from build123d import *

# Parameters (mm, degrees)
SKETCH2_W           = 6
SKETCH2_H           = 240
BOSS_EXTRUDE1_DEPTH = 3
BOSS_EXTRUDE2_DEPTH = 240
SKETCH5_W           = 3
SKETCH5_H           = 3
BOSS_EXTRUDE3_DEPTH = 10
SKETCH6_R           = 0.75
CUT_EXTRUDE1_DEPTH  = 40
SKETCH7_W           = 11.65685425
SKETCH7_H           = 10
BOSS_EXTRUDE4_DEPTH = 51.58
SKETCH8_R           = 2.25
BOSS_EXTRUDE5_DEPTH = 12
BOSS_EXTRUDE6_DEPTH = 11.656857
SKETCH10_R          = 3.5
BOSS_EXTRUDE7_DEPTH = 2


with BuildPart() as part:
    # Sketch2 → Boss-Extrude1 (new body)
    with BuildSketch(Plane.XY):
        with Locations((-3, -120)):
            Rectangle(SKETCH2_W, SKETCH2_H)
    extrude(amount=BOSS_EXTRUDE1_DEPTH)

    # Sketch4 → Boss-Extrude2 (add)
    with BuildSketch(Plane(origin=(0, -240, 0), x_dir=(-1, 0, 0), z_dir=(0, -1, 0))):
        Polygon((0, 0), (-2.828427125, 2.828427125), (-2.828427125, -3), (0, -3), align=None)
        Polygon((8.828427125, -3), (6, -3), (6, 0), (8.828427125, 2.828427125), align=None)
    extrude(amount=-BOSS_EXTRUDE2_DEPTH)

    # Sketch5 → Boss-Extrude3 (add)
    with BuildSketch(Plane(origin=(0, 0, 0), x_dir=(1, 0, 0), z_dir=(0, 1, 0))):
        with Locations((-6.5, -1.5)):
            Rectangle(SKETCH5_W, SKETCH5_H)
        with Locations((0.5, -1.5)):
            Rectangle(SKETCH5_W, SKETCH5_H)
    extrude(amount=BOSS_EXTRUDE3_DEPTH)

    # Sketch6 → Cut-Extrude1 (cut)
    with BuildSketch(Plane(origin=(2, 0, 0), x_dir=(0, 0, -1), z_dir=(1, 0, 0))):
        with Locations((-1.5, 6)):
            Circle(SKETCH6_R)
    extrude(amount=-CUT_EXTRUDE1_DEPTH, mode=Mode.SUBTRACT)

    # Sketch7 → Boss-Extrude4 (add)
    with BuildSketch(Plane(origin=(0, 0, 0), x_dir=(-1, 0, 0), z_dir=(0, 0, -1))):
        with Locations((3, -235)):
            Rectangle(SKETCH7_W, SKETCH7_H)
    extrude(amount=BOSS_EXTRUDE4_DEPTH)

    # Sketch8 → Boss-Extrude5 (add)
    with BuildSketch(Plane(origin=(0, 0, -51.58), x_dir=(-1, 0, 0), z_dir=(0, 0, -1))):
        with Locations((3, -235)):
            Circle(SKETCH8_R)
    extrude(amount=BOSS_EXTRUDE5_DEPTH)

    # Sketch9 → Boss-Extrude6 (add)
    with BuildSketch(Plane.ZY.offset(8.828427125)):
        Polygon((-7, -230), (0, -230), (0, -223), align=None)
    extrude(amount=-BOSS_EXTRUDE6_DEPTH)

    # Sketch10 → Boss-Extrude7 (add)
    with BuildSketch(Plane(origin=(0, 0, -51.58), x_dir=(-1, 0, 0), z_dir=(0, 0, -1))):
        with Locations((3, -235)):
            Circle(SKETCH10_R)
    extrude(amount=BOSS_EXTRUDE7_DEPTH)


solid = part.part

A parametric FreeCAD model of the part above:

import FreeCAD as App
import Part
import Sketcher
Q = App.Units.Quantity

doc = App.newDocument("Part")
body = doc.addObject("PartDesign::Body", "Body")

# Sketch on XY plane
sketch1 = body.newObject("Sketcher::SketchObject", "Sketch")
sketch1.AttachmentSupport = (doc.getObject("XY_Plane"), [""])
sketch1.MapMode = "FlatFace"
sketch1.addGeometry(Part.LineSegment(App.Vector(-6, 0, 0), App.Vector(-6, -240, 0)), False)
sketch1.addGeometry(Part.LineSegment(App.Vector(-6, -240, 0), App.Vector(0, -240, 0)), False)
sketch1.addGeometry(Part.LineSegment(App.Vector(0, -240, 0), App.Vector(0, 0, 0)), False)
sketch1.addGeometry(Part.LineSegment(App.Vector(0, 0, 0), App.Vector(-6, 0, 0)), False)
sketch1.addConstraint(Sketcher.Constraint("Coincident", 0, 2, 1, 1))
sketch1.addConstraint(Sketcher.Constraint("Coincident", 1, 2, 2, 1))
sketch1.addConstraint(Sketcher.Constraint("Coincident", 2, 2, 3, 1))
sketch1.addConstraint(Sketcher.Constraint("Coincident", 3, 2, 0, 1))
sketch1.addConstraint(Sketcher.Constraint("Vertical", 0))
sketch1.addConstraint(Sketcher.Constraint("Horizontal", 1))
sketch1.addConstraint(Sketcher.Constraint("Vertical", 2))
sketch1.addConstraint(Sketcher.Constraint("Horizontal", 3))
sketch1.addConstraint(Sketcher.Constraint("Coincident", 2, 2, -1, 1))
sketch1.addConstraint(Sketcher.Constraint("DistanceX", 1, 1, 1, 2, Q("6 mm")))
sketch1.addConstraint(Sketcher.Constraint("DistanceY", 0, 2, 0, 1, Q("240 mm")))
pad1 = body.newObject("PartDesign::Pad", "Pad")
pad1.Profile = sketch1
pad1.Length = 3

# Sketch on XZ plane
sketch2 = body.newObject("Sketcher::SketchObject", "Sketch001")
sketch2.AttachmentSupport = (doc.getObject("XZ_Plane"), [""])
sketch2.MapMode = "FlatFace"
sketch2.AttachmentOffset = App.Placement(App.Vector(0, 0, 240), App.Rotation())
sketch2.addGeometry(Part.LineSegment(App.Vector(0, 0, 0), App.Vector(2.8, -2.8, 0)), False)
sketch2.addGeometry(Part.LineSegment(App.Vector(2.8, -2.8, 0), App.Vector(2.8, 3, 0)), False)
sketch2.addGeometry(Part.LineSegment(App.Vector(2.8, 3, 0), App.Vector(0, 3, 0)), False)
sketch2.addGeometry(Part.LineSegment(App.Vector(0, 3, 0), App.Vector(0, 0, 0)), False)
sketch2.addGeometry(Part.LineSegment(App.Vector(-6, 3, 0), App.Vector(-8.8, 3, 0)), False)
sketch2.addGeometry(Part.LineSegment(App.Vector(-8.8, 3, 0), App.Vector(-8.8, -2.8, 0)), False)
sketch2.addGeometry(Part.LineSegment(App.Vector(-8.8, -2.8, 0), App.Vector(-6, 0, 0)), False)
sketch2.addGeometry(Part.LineSegment(App.Vector(-6, 0, 0), App.Vector(-6, 3, 0)), False)
sketch2.addConstraint(Sketcher.Constraint("Coincident", 0, 2, 1, 1))
sketch2.addConstraint(Sketcher.Constraint("Coincident", 1, 2, 2, 1))
sketch2.addConstraint(Sketcher.Constraint("Coincident", 2, 2, 3, 1))
sketch2.addConstraint(Sketcher.Constraint("Coincident", 3, 2, 0, 1))
sketch2.addConstraint(Sketcher.Constraint("Coincident", 4, 2, 5, 1))
sketch2.addConstraint(Sketcher.Constraint("Coincident", 5, 2, 6, 1))
sketch2.addConstraint(Sketcher.Constraint("Coincident", 6, 2, 7, 1))
sketch2.addConstraint(Sketcher.Constraint("Coincident", 7, 2, 4, 1))
sketch2.addConstraint(Sketcher.Constraint("Vertical", 1))
sketch2.addConstraint(Sketcher.Constraint("Horizontal", 2))
sketch2.addConstraint(Sketcher.Constraint("Vertical", 3))
sketch2.addConstraint(Sketcher.Constraint("Horizontal", 4))
sketch2.addConstraint(Sketcher.Constraint("Vertical", 5))
sketch2.addConstraint(Sketcher.Constraint("Vertical", 7))
sketch2.addConstraint(Sketcher.Constraint("Coincident", 3, 2, -1, 1))
sketch2.addConstraint(Sketcher.Constraint("PointOnObject", 6, 2, -1))
sketch2.addConstraint(Sketcher.Constraint("Perpendicular", 0, 6))
sketch2.addConstraint(Sketcher.Constraint("Horizontal", 2, 2, 4, 2))
sketch2.addConstraint(Sketcher.Constraint("Horizontal", 0, 2, 5, 2))
sketch2.addConstraint(Sketcher.Constraint("Equal", 2, 4))
sketch2.addConstraint(Sketcher.Constraint("DistanceY", 3, 2, 3, 1, Q("3 mm")))
sketch2.addConstraint(Sketcher.Constraint("Distance", 0, Q("4 mm")))
sketch2.addConstraint(Sketcher.Constraint("DistanceX", 6, 2, -1, 1, Q("6 mm")))
pad2 = body.newObject("PartDesign::Pad", "Pad001")
pad2.Profile = sketch2
pad2.Length = 240
pad2.Reversed = True

# Sketch on XZ plane
sketch3 = body.newObject("Sketcher::SketchObject", "Sketch002")
sketch3.AttachmentSupport = (doc.getObject("XZ_Plane"), [""])
sketch3.MapMode = "FlatFace"
sketch3.addGeometry(Part.LineSegment(App.Vector(-8, 0, 0), App.Vector(-8, 3, 0)), False)
sketch3.addGeometry(Part.LineSegment(App.Vector(-8, 3, 0), App.Vector(-5, 3, 0)), False)
sketch3.addGeometry(Part.LineSegment(App.Vector(-5, 3, 0), App.Vector(-5, 0, 0)), False)
sketch3.addGeometry(Part.LineSegment(App.Vector(-5, 0, 0), App.Vector(-8, 0, 0)), False)
sketch3.addGeometry(Part.LineSegment(App.Vector(-1, 0, 0), App.Vector(-1, 3, 0)), False)
sketch3.addGeometry(Part.LineSegment(App.Vector(-1, 3, 0), App.Vector(2, 3, 0)), False)
sketch3.addGeometry(Part.LineSegment(App.Vector(2, 3, 0), App.Vector(2, 0, 0)), False)
sketch3.addGeometry(Part.LineSegment(App.Vector(2, 0, 0), App.Vector(-1, 0, 0)), False)
sketch3.addConstraint(Sketcher.Constraint("Coincident", 0, 2, 1, 1))
sketch3.addConstraint(Sketcher.Constraint("Coincident", 1, 2, 2, 1))
sketch3.addConstraint(Sketcher.Constraint("Coincident", 2, 2, 3, 1))
sketch3.addConstraint(Sketcher.Constraint("Coincident", 3, 2, 0, 1))
sketch3.addConstraint(Sketcher.Constraint("Coincident", 4, 2, 5, 1))
sketch3.addConstraint(Sketcher.Constraint("Coincident", 5, 2, 6, 1))
sketch3.addConstraint(Sketcher.Constraint("Coincident", 6, 2, 7, 1))
sketch3.addConstraint(Sketcher.Constraint("Coincident", 7, 2, 4, 1))
sketch3.addConstraint(Sketcher.Constraint("Vertical", 0))
sketch3.addConstraint(Sketcher.Constraint("Horizontal", 1))
sketch3.addConstraint(Sketcher.Constraint("Vertical", 2))
sketch3.addConstraint(Sketcher.Constraint("Horizontal", 3))
sketch3.addConstraint(Sketcher.Constraint("Vertical", 4))
sketch3.addConstraint(Sketcher.Constraint("Horizontal", 5))
sketch3.addConstraint(Sketcher.Constraint("Vertical", 6))
sketch3.addConstraint(Sketcher.Constraint("Horizontal", 7))
sketch3.addConstraint(Sketcher.Constraint("PointOnObject", 2, 2, -1))
sketch3.addConstraint(Sketcher.Constraint("PointOnObject", 6, 2, -1))
sketch3.addConstraint(Sketcher.Constraint("Horizontal", 1, 2, 4, 2))
sketch3.addConstraint(Sketcher.Constraint("Equal", 3, 5))
sketch3.addConstraint(Sketcher.Constraint("Equal", 7, 0))
sketch3.addConstraint(Sketcher.Constraint("DistanceX", 1, 1, 1, 2, Q("3 mm")))
sketch3.addConstraint(Sketcher.Constraint("DistanceX", 0, 2, -1, 1, Q("8 mm")))
sketch3.addConstraint(Sketcher.Constraint("DistanceX", 4, 2, -1, 1, Q("1 mm")))
pad3 = body.newObject("PartDesign::Pad", "Pad002")
pad3.Profile = sketch3
pad3.Length = 10
pad3.Reversed = True

# Sketch on YZ plane
sketch4 = body.newObject("Sketcher::SketchObject", "Sketch003")
sketch4.AttachmentSupport = (doc.getObject("YZ_Plane"), [""])
sketch4.MapMode = "FlatFace"
sketch4.AttachmentOffset = App.Placement(App.Vector(0, 0, 2), App.Rotation())
sketch4.addGeometry(Part.Circle(App.Vector(6, 1.5, 0), App.Vector(0, 0, 1), 0.8), False)
sketch4.addConstraint(Sketcher.Constraint("Diameter", 0, Q("1.5 mm")))
sketch4.addConstraint(Sketcher.Constraint("DistanceX", -1, 1, 0, 3, Q("6 mm")))
sketch4.addConstraint(Sketcher.Constraint("DistanceY", -1, 1, 0, 3, Q("1.5 mm")))
pocket1 = body.newObject("PartDesign::Pocket", "Pocket")
pocket1.Profile = sketch4
pocket1.Length = 40

# Sketch on XY plane
sketch5 = body.newObject("Sketcher::SketchObject", "Sketch004")
sketch5.AttachmentSupport = (doc.getObject("XY_Plane"), [""])
sketch5.MapMode = "FlatFace"
sketch5.addGeometry(Part.LineSegment(App.Vector(3, -230, 0), App.Vector(3, -240, 0)), False)
sketch5.addGeometry(Part.LineSegment(App.Vector(3, -240, 0), App.Vector(-9, -240, 0)), False)
sketch5.addGeometry(Part.LineSegment(App.Vector(-9, -240, 0), App.Vector(-9, -230, 0)), False)
sketch5.addGeometry(Part.LineSegment(App.Vector(-9, -230, 0), App.Vector(3, -230, 0)), False)
sketch5.addConstraint(Sketcher.Constraint("Coincident", 0, 2, 1, 1))
sketch5.addConstraint(Sketcher.Constraint("Coincident", 1, 2, 2, 1))
sketch5.addConstraint(Sketcher.Constraint("Coincident", 2, 2, 3, 1))
sketch5.addConstraint(Sketcher.Constraint("Coincident", 3, 2, 0, 1))
sketch5.addConstraint(Sketcher.Constraint("Vertical", 0))
sketch5.addConstraint(Sketcher.Constraint("Horizontal", 1))
sketch5.addConstraint(Sketcher.Constraint("Vertical", 2))
sketch5.addConstraint(Sketcher.Constraint("Horizontal", 3))
sketch5.addConstraint(Sketcher.Constraint("DistanceY", 0, 2, 0, 1, Q("10 mm")))
sketch5.addConstraint(Sketcher.Constraint("DistanceY", 0, 2, -1, 1, Q("240 mm")))
sketch5.addConstraint(Sketcher.Constraint("DistanceX", 1, 2, 1, 1, Q("11.656854 mm")))
sketch5.addConstraint(Sketcher.Constraint("DistanceX", -1, 1, 0, 2, Q("2.828427 mm")))
pad4 = body.newObject("PartDesign::Pad", "Pad003")
pad4.Profile = sketch5
pad4.Length = 51.58
pad4.Reversed = True

# Sketch on XY plane
sketch6 = body.newObject("Sketcher::SketchObject", "Sketch005")
sketch6.AttachmentSupport = (doc.getObject("XY_Plane"), [""])
sketch6.MapMode = "FlatFace"
sketch6.AttachmentOffset = App.Placement(App.Vector(0, 0, -51.58), App.Rotation())
sketch6.addGeometry(Part.Circle(App.Vector(-3, -235, 0), App.Vector(0, 0, 1), 2.2), False)
sketch6.addConstraint(Sketcher.Constraint("Diameter", 0, Q("4.5 mm")))
sketch6.addConstraint(Sketcher.Constraint("DistanceX", 0, 3, -1, 1, Q("3 mm")))
sketch6.addConstraint(Sketcher.Constraint("DistanceY", 0, 3, -1, 1, Q("235 mm")))
pad5 = body.newObject("PartDesign::Pad", "Pad004")
pad5.Profile = sketch6
pad5.Length = 12
pad5.Reversed = True

# Sketch on YZ plane
sketch7 = body.newObject("Sketcher::SketchObject", "Sketch006")
sketch7.AttachmentSupport = (doc.getObject("YZ_Plane"), [""])
sketch7.MapMode = "FlatFace"
sketch7.AttachmentOffset = App.Placement(App.Vector(0, 0, -8.828427), App.Rotation())
sketch7.addGeometry(Part.LineSegment(App.Vector(-230, -7, 0), App.Vector(-230, 0, 0)), False)
sketch7.addGeometry(Part.LineSegment(App.Vector(-230, 0, 0), App.Vector(-223, 0, 0)), False)
sketch7.addGeometry(Part.LineSegment(App.Vector(-223, 0, 0), App.Vector(-230, -7, 0)), False)
sketch7.addConstraint(Sketcher.Constraint("Coincident", 0, 2, 1, 1))
sketch7.addConstraint(Sketcher.Constraint("Coincident", 1, 2, 2, 1))
sketch7.addConstraint(Sketcher.Constraint("Coincident", 2, 2, 0, 1))
sketch7.addConstraint(Sketcher.Constraint("Vertical", 0))
sketch7.addConstraint(Sketcher.Constraint("Horizontal", 1))
sketch7.addConstraint(Sketcher.Constraint("PointOnObject", 0, 2, -1))
sketch7.addConstraint(Sketcher.Constraint("Equal", 1, 0))
sketch7.addConstraint(Sketcher.Constraint("DistanceX", 1, 1, 1, 2, Q("7 mm")))
sketch7.addConstraint(Sketcher.Constraint("DistanceX", 0, 2, -1, 1, Q("230 mm")))
pad6 = body.newObject("PartDesign::Pad", "Pad005")
pad6.Profile = sketch7
pad6.Length = 11.656857

# Sketch on XY plane
sketch8 = body.newObject("Sketcher::SketchObject", "Sketch007")
sketch8.AttachmentSupport = (doc.getObject("XY_Plane"), [""])
sketch8.MapMode = "FlatFace"
sketch8.AttachmentOffset = App.Placement(App.Vector(0, 0, -51.58), App.Rotation())
sketch8.addGeometry(Part.Circle(App.Vector(-3, -235, 0), App.Vector(0, 0, 1), 3.5), False)
sketch8.addConstraint(Sketcher.Constraint("Diameter", 0, Q("7 mm")))
sketch8.addConstraint(Sketcher.Constraint("DistanceX", 0, 3, -1, 1, Q("3 mm")))
sketch8.addConstraint(Sketcher.Constraint("DistanceY", 0, 3, -1, 1, Q("235 mm")))
pad7 = body.newObject("PartDesign::Pad", "Pad006")
pad7.Profile = sketch8
pad7.Length = 2
pad7.Reversed = True

doc.recompute()
